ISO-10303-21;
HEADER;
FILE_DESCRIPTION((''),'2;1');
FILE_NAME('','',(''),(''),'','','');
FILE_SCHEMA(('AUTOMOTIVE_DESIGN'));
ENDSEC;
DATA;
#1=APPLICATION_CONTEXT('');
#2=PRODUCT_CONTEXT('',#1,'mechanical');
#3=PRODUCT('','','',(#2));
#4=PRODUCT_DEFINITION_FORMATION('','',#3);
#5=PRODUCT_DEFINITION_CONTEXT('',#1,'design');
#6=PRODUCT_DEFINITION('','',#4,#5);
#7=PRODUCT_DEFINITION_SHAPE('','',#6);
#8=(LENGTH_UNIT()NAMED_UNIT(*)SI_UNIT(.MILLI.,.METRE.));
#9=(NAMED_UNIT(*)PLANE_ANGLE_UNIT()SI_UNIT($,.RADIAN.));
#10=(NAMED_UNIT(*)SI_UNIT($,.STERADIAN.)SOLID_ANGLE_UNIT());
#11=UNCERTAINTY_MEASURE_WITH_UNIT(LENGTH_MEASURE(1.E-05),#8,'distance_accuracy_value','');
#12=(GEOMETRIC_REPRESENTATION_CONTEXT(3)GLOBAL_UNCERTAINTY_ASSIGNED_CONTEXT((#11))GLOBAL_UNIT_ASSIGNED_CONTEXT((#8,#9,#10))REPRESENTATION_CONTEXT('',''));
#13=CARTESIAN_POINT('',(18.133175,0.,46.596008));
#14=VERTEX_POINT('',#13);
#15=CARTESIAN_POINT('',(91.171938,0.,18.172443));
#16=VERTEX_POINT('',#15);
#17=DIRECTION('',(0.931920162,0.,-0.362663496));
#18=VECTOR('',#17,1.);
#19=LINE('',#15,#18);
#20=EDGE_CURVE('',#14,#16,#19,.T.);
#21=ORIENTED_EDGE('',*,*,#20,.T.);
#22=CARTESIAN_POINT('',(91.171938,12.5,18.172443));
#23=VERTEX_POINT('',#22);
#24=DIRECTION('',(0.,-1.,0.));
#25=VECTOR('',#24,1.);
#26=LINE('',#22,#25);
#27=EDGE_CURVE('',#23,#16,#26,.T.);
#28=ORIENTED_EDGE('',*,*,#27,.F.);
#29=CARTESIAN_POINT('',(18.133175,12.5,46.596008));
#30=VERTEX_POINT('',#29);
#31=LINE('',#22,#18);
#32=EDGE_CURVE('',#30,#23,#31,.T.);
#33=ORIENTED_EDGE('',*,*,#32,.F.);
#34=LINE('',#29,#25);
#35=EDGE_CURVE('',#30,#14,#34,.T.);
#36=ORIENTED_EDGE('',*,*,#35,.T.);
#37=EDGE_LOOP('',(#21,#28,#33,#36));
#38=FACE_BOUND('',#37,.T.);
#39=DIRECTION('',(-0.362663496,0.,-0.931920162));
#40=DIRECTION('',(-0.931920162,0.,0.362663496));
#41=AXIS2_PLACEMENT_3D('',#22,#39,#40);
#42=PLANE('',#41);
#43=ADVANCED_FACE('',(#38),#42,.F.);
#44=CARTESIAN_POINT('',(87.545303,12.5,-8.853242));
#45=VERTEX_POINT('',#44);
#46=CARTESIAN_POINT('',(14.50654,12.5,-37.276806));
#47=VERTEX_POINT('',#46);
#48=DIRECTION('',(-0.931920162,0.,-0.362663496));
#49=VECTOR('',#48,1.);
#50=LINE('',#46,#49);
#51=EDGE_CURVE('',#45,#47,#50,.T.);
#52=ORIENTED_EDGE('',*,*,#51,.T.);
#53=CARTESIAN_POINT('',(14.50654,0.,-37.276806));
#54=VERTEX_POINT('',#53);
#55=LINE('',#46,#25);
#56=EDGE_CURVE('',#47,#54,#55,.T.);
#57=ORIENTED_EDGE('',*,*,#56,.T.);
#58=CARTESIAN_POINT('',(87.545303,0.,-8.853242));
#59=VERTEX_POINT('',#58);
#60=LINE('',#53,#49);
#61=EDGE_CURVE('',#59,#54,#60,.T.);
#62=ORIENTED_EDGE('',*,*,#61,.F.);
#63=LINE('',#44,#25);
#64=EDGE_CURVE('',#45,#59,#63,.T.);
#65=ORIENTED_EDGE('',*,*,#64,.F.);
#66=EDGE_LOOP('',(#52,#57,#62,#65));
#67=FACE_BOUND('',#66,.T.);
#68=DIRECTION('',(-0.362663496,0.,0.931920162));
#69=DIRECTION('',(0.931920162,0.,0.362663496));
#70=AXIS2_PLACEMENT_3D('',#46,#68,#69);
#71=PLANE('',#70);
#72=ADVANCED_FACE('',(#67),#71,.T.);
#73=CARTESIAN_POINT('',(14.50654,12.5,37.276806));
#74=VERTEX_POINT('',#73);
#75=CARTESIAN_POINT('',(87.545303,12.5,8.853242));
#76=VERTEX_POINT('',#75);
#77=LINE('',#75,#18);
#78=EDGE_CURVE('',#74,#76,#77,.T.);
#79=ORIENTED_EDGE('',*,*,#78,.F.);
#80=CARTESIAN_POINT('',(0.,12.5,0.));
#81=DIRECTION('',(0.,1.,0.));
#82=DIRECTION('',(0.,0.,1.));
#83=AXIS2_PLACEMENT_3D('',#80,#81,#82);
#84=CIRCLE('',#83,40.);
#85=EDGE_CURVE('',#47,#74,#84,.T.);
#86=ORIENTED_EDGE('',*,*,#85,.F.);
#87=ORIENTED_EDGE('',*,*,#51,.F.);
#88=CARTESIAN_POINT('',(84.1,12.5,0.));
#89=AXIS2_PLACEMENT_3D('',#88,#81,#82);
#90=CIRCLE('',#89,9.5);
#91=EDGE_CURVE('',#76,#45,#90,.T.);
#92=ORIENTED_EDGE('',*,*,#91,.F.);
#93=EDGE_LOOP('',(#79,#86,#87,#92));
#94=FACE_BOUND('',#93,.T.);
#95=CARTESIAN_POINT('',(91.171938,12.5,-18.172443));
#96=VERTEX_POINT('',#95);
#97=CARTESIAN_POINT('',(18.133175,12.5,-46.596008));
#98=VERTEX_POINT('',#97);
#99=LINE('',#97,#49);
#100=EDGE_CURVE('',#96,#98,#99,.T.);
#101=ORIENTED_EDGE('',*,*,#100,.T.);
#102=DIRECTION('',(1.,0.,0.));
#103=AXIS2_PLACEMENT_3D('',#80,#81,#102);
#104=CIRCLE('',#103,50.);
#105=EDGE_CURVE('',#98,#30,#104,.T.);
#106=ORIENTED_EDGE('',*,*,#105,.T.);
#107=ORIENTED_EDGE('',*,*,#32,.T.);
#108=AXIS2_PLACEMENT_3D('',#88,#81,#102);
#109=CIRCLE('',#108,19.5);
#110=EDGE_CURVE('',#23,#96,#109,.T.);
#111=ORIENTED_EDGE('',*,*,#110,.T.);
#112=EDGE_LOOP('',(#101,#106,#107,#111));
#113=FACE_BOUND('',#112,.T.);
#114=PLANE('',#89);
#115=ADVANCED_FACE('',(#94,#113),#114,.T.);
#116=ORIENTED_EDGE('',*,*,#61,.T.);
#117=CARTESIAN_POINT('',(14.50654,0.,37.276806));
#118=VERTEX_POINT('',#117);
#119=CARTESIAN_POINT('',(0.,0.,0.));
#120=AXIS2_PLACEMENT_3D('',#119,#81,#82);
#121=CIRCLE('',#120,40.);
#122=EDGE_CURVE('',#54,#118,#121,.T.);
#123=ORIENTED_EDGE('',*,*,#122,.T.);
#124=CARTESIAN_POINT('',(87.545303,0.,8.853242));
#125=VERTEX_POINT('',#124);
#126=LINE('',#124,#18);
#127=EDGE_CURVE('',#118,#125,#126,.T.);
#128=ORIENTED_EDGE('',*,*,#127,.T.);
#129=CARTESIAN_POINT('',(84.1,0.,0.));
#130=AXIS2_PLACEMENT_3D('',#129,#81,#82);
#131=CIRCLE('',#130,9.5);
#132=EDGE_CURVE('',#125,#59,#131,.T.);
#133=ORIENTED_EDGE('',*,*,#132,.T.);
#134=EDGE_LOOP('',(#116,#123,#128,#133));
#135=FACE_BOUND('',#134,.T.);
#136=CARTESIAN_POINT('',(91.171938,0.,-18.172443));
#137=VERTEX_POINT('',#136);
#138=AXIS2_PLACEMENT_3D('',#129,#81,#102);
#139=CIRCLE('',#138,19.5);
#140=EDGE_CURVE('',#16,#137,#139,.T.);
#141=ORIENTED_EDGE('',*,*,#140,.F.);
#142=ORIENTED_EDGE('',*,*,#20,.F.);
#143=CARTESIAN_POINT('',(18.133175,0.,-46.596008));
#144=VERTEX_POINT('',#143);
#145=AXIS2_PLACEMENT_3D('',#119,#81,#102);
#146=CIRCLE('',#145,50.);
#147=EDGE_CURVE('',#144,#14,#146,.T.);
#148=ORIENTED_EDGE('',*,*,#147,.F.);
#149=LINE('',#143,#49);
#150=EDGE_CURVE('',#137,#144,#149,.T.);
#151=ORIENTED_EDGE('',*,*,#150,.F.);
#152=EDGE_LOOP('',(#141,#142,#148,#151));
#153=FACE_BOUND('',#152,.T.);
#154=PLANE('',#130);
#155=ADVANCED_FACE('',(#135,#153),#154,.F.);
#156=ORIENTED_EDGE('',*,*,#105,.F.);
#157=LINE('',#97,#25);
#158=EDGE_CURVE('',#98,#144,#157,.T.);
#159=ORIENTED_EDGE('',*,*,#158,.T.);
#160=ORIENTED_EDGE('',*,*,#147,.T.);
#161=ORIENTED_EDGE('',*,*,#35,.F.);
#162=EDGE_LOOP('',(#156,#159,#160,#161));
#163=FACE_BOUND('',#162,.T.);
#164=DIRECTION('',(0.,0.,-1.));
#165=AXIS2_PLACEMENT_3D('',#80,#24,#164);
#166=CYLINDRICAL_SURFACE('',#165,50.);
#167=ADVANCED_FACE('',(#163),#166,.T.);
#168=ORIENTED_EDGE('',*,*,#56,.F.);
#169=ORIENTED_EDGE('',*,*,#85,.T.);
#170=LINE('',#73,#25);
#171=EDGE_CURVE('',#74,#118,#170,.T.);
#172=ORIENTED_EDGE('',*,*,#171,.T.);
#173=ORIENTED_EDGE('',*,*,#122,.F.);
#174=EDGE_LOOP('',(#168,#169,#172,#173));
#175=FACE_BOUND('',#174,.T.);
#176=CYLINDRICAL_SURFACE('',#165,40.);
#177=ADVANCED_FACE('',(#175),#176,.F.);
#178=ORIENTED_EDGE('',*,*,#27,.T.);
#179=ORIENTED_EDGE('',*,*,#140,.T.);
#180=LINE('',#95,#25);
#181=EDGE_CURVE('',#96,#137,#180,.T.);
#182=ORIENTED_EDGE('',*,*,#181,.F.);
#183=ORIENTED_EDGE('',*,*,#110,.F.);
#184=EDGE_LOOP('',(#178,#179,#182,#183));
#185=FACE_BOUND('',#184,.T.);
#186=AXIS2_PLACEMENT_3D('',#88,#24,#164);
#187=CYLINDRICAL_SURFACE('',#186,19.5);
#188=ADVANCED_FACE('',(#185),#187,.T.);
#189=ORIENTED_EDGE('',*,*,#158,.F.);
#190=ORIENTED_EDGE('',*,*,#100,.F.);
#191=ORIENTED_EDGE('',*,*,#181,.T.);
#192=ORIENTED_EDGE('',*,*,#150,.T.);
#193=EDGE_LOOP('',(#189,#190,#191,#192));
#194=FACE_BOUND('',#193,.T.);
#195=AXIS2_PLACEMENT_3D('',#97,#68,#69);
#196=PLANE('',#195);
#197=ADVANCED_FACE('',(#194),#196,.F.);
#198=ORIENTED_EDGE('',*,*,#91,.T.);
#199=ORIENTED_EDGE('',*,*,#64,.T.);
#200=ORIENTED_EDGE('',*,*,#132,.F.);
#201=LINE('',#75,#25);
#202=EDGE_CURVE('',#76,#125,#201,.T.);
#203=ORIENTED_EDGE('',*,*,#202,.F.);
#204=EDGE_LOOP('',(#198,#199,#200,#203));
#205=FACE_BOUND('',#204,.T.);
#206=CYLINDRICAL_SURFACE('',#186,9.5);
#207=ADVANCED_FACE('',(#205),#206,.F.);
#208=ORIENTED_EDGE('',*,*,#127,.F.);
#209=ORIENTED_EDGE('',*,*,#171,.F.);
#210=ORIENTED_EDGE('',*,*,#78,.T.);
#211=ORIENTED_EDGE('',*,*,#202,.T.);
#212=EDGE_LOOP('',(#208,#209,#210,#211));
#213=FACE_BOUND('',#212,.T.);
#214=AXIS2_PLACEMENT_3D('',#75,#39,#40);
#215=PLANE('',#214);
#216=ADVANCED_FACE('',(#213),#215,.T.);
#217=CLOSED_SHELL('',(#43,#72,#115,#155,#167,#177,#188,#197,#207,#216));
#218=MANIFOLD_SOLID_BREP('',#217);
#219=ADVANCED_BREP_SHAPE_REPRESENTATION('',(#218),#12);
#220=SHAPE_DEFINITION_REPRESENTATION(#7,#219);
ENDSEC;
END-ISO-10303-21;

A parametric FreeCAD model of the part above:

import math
import FreeCAD as App
import Part
import Sketcher
from FreeCAD import Vector
Q = App.Units.Quantity

doc = App.newDocument("Part")
body = doc.addObject("PartDesign::Body", "Body")

sketch1 = body.newObject("Sketcher::SketchObject", "Sketch")
sketch1.AttachmentSupport = (doc.getObject("XZ_Plane"), [""])
sketch1.MapMode = "FlatFace"
sketch1.addGeometry(Part.LineSegment(Vector(18, 47, 0), Vector(91, 18, 0)), False)
sketch1.addGeometry(Part.ArcOfCircle(Part.Circle(Vector(84, 0, 0), Vector(0, 0, 1), 20), math.radians(-69), math.radians(69)), False)
sketch1.addGeometry(Part.LineSegment(Vector(91, -18, 0), Vector(18, -47, 0)), False)
sketch1.addGeometry(Part.ArcOfCircle(Part.Circle(Vector(0, 0, 0), Vector(0, 0, 1), 50), math.radians(69), math.radians(291)), False)
sketch1.addGeometry(Part.LineSegment(Vector(88, 9, 0), Vector(15, 37, 0)), False)
sketch1.addGeometry(Part.ArcOfCircle(Part.Circle(Vector(0, 0, 0), Vector(0, 0, 1), 40), math.radians(69), math.radians(291)), False)
sketch1.addGeometry(Part.LineSegment(Vector(15, -37, 0), Vector(88, -9, 0)), False)
sketch1.addGeometry(Part.ArcOfCircle(Part.Circle(Vector(84, 0, 0), Vector(0, 0, 1), 9), math.radians(-69), math.radians(69)), False)
sketch1.addConstraint(Sketcher.Constraint("Tangent", 0, 2, 1, 2))
sketch1.addConstraint(Sketcher.Constraint("Tangent", 1, 1, 2, 1))
sketch1.addConstraint(Sketcher.Constraint("Tangent", 2, 2, 3, 2))
sketch1.addConstraint(Sketcher.Constraint("Tangent", 3, 1, 0, 1))
sketch1.addConstraint(Sketcher.Constraint("Tangent", 4, 2, 5, 1))
sketch1.addConstraint(Sketcher.Constraint("Tangent", 5, 2, 6, 1))
sketch1.addConstraint(Sketcher.Constraint("Tangent", 6, 2, 7, 1))
sketch1.addConstraint(Sketcher.Constraint("Tangent", 7, 2, 4, 1))
sketch1.addConstraint(Sketcher.Constraint("Coincident", 3, 3, -1, 1))
sketch1.addConstraint(Sketcher.Constraint("Coincident", 5, 3, -1, 1))
sketch1.addConstraint(Sketcher.Constraint("Coincident", 7, 3, 1, 3))
sketch1.addConstraint(Sketcher.Constraint("PointOnObject", 1, 3, -1))
sketch1.addConstraint(Sketcher.Constraint("Parallel", 0, 4))
sketch1.addConstraint(Sketcher.Constraint("Radius", 3, Q("50 mm")))
sketch1.addConstraint(Sketcher.Constraint("Radius", 5, Q("40 mm")))
sketch1.addConstraint(Sketcher.Constraint("Radius", 1, Q("19.5 mm")))
sketch1.addConstraint(Sketcher.Constraint("DistanceX", -1, 1, 1, 3, Q("84.1 mm")))
pad1 = body.newObject("PartDesign::Pad", "Pad")
pad1.Profile = sketch1
pad1.Length = 12.5
pad1.Reversed = True

doc.recompute()
